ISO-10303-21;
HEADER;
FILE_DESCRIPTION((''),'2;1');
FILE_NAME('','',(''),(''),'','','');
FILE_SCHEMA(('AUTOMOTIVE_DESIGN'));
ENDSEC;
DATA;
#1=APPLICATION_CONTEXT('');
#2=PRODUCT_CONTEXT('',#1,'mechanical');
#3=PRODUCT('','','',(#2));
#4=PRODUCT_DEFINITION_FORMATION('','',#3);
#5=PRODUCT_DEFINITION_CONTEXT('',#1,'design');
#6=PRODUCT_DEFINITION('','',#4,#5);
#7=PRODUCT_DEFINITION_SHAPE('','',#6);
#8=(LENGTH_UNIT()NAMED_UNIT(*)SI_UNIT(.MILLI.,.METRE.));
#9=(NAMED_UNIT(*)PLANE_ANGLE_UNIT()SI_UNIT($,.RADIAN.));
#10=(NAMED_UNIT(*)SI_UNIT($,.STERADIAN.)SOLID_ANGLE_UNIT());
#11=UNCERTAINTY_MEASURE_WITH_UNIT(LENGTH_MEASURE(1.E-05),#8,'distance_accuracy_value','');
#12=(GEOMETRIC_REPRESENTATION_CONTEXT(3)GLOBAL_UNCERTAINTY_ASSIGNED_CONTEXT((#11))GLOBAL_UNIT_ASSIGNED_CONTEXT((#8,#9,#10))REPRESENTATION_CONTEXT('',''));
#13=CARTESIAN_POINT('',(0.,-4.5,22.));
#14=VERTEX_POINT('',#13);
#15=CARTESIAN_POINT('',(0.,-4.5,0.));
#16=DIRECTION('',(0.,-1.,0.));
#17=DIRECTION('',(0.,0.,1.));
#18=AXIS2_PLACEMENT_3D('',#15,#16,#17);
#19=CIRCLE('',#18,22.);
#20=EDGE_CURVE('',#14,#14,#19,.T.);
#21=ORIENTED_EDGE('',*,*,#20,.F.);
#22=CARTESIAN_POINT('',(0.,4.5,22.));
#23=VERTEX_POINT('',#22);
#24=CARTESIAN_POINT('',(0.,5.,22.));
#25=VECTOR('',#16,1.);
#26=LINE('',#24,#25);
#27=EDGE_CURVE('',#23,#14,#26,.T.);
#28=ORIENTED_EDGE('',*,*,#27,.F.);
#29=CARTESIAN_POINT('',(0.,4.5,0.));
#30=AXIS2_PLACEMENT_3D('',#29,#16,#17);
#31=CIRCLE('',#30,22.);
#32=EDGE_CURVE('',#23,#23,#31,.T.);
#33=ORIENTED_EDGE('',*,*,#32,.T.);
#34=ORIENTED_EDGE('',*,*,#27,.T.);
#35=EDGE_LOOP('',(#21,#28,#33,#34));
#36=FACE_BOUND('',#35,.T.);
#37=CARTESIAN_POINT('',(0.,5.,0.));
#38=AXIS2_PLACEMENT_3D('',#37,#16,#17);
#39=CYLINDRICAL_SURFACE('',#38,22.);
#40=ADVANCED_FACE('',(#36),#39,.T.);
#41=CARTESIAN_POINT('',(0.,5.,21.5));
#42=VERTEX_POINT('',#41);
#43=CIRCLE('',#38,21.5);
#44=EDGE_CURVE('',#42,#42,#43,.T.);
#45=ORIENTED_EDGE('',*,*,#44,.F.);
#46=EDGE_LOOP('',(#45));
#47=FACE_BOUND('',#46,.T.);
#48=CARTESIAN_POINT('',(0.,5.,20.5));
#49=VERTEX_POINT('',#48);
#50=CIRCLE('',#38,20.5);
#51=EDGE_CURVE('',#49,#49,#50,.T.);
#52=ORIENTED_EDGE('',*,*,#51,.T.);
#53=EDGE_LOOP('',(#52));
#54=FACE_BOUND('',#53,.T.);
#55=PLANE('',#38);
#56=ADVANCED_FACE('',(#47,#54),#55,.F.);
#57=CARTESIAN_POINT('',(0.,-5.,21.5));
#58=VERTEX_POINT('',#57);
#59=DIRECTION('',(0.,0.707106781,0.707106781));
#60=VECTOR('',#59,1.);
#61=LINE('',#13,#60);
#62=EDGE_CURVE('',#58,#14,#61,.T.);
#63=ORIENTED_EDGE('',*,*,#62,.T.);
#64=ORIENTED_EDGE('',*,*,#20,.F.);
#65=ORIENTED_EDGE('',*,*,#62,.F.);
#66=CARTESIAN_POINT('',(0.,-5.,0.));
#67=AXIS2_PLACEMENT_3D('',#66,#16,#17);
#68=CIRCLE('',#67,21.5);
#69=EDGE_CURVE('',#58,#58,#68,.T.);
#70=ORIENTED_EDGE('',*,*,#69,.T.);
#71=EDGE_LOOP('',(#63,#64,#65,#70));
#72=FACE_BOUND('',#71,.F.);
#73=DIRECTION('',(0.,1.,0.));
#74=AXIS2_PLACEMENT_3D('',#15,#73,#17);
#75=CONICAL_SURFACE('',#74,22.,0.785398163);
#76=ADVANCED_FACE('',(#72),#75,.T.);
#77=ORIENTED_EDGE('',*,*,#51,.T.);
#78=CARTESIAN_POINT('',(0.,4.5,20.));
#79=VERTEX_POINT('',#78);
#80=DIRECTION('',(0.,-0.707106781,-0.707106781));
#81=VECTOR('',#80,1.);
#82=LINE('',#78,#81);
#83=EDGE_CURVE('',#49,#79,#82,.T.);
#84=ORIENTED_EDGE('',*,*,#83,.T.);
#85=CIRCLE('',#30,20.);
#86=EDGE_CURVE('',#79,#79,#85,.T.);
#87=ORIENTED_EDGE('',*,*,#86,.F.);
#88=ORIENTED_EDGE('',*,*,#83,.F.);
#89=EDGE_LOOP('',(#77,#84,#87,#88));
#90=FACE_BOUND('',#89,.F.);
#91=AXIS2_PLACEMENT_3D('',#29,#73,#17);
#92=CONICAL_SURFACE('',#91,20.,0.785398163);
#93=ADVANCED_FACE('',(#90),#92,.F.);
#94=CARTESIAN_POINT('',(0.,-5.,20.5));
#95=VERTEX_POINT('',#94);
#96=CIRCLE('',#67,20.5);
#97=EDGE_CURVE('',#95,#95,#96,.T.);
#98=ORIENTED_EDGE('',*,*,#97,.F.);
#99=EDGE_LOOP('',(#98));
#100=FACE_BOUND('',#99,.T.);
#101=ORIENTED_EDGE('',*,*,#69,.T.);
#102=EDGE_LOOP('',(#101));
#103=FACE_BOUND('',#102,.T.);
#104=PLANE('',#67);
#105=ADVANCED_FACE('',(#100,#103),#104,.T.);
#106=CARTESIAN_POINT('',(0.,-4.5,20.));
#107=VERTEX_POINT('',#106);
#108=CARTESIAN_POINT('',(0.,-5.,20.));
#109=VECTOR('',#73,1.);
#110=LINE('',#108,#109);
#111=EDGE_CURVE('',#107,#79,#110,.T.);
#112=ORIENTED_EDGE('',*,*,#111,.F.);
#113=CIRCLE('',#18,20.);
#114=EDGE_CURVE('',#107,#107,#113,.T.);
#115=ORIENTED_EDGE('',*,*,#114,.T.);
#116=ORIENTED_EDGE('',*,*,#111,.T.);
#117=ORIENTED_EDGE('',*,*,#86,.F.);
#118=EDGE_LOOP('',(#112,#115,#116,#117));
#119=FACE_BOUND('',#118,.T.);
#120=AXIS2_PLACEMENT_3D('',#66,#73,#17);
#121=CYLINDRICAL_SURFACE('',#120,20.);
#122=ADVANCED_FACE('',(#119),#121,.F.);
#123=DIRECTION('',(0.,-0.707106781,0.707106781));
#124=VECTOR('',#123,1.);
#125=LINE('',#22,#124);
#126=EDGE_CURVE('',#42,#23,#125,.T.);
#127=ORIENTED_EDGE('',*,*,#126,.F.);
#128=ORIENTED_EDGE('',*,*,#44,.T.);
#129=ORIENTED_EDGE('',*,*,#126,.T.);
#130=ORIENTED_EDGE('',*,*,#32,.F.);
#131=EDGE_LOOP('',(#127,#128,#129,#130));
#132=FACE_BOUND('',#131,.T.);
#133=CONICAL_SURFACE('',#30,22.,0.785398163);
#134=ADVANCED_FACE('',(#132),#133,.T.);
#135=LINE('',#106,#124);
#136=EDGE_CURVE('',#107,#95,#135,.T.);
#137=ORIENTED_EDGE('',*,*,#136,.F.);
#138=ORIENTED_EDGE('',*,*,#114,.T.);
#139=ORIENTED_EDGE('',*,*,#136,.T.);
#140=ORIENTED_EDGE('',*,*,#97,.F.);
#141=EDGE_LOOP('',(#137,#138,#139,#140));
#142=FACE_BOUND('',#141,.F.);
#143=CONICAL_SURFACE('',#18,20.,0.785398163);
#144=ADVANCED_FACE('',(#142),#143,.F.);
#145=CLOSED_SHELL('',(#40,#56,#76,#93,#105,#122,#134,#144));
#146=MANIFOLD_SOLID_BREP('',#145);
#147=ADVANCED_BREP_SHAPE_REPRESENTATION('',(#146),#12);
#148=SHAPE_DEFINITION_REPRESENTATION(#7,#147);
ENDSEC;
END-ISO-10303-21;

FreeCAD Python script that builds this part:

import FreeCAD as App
import Part
import Sketcher

V = App.Vector
Q = App.Units.Quantity


def edges_at(feature, points):
    """Names of the edges that pass closest to the given points."""
    edges = feature.Shape.Edges
    near = lambda p: min(range(len(edges)), key=lambda i: edges[i].distToShape(Part.Vertex(*p))[0])
    return sorted({f"Edge{near(p) + 1}" for p in points})

doc = App.newDocument("Part")
body = doc.addObject("PartDesign::Body", "Body")

sketch1 = doc.addObject("Sketcher::SketchObject", "Sketch")
body.addObject(sketch1)
sketch1.AttachmentSupport = (doc.YZ_Plane, [""])
sketch1.MapMode = "FlatFace"
sketch1.addGeometry([
    Part.LineSegment(V(5, 20, 0), V(5, 22, 0)),
    Part.LineSegment(V(5, 22, 0), V(-5, 22, 0)),
    Part.LineSegment(V(-5, 22, 0), V(-5, 20, 0)),
    Part.LineSegment(V(-5, 20, 0), V(5, 20, 0)),
], False)
sketch1.addConstraint([
    Sketcher.Constraint("Coincident", 0, 2, 1, 1),
    Sketcher.Constraint("Coincident", 1, 2, 2, 1),
    Sketcher.Constraint("Coincident", 2, 2, 3, 1),
    Sketcher.Constraint("Coincident", 3, 2, 0, 1),
    Sketcher.Constraint("Vertical", 0),
    Sketcher.Constraint("Horizontal", 1),
    Sketcher.Constraint("Vertical", 2),
    Sketcher.Constraint("Horizontal", 3),
    Sketcher.Constraint("DistanceX", 1, 2, 1, 1, Q("10 mm")),
    Sketcher.Constraint("DistanceX", -1, 1, 0, 2, Q("5 mm")),
    Sketcher.Constraint("DistanceY", -1, 1, 0, 2, Q("22 mm")),
    Sketcher.Constraint("DistanceY", -1, 1, 2, 2, Q("20 mm")),
])
revolution = doc.addObject("PartDesign::Revolution", "Revolution")
body.addObject(revolution)
revolution.Profile = sketch1
revolution.ReferenceAxis = (sketch1, ["H_Axis"])
revolution.Angle = 360
doc.recompute()

chamfer = doc.addObject("PartDesign::Chamfer", "Chamfer")
body.addObject(chamfer)
chamfer.Base = (revolution, edges_at(revolution, [
    (0, 5, -20),
    (0, 5, -22),
    (0, -5, -22),
    (0, -5, -20),
]))
chamfer.Size = 0.5

doc.recompute()
